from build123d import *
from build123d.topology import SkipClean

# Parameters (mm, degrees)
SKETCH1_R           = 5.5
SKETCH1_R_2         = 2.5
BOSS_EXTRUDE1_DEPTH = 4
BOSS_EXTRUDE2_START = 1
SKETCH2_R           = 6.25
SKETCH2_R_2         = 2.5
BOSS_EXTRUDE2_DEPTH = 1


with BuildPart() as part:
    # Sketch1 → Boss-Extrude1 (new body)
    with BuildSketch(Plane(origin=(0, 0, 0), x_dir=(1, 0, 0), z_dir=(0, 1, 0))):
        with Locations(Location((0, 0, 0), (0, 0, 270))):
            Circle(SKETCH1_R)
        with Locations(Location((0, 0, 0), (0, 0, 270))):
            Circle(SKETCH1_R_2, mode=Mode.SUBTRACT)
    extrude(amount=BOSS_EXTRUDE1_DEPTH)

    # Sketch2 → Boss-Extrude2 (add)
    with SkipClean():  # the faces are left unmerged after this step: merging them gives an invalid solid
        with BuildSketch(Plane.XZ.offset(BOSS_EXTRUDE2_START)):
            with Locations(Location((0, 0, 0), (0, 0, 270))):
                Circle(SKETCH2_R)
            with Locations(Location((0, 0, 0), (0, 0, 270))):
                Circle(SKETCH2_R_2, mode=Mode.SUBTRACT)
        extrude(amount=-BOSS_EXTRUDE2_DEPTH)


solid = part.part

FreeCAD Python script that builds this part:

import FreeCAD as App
import Part
import Sketcher
from FreeCAD import Vector
Q = App.Units.Quantity

doc = App.newDocument("Part")
body = doc.addObject("PartDesign::Body", "Body")

sketch1 = doc.addObject("Sketcher::SketchObject", "Sketch")
body.addObject(sketch1)
sketch1.AttachmentSupport = (doc.XZ_Plane, [""])
sketch1.MapMode = "FlatFace"
sketch1.addGeometry(Part.Circle(Vector(0, 0, 0), Vector(0, 0, 1), 5.5), False)
sketch1.addGeometry(Part.Circle(Vector(0, 0, 0), Vector(0, 0, 1), 2.5), False)
sketch1.addConstraint(Sketcher.Constraint("Coincident", 0, 3, -1, 1))
sketch1.addConstraint(Sketcher.Constraint("Coincident", 1, 3, -1, 1))
sketch1.addConstraint(Sketcher.Constraint("Diameter", 0, Q("11 mm")))
sketch1.addConstraint(Sketcher.Constraint("Diameter", 1, Q("5 mm")))
pad1 = doc.addObject("PartDesign::Pad", "Pad")
body.addObject(pad1)
pad1.Profile = sketch1
pad1.Length = 4
pad1.Reversed = True

sketch2 = doc.addObject("Sketcher::SketchObject", "Sketch001")
body.addObject(sketch2)
sketch2.AttachmentSupport = (doc.XZ_Plane, [""])
sketch2.MapMode = "FlatFace"
sketch2.AttachmentOffset = App.Placement(Vector(0, 0, 1), App.Rotation())
sketch2.addGeometry(Part.Circle(Vector(0, 0, 0), Vector(0, 0, 1), 6.25), False)
sketch2.addGeometry(Part.Circle(Vector(0, 0, 0), Vector(0, 0, 1), 2.5), False)
sketch2.addConstraint(Sketcher.Constraint("Coincident", 0, 3, -1, 1))
sketch2.addConstraint(Sketcher.Constraint("Coincident", 1, 3, -1, 1))
sketch2.addConstraint(Sketcher.Constraint("Diameter", 1, Q("5 mm")))
sketch2.addConstraint(Sketcher.Constraint("Diameter", 0, Q("12.5 mm")))
pad2 = doc.addObject("PartDesign::Pad", "Pad001")
body.addObject(pad2)
pad2.Profile = sketch2
pad2.Length = 1
pad2.Reversed = True

doc.recompute()
